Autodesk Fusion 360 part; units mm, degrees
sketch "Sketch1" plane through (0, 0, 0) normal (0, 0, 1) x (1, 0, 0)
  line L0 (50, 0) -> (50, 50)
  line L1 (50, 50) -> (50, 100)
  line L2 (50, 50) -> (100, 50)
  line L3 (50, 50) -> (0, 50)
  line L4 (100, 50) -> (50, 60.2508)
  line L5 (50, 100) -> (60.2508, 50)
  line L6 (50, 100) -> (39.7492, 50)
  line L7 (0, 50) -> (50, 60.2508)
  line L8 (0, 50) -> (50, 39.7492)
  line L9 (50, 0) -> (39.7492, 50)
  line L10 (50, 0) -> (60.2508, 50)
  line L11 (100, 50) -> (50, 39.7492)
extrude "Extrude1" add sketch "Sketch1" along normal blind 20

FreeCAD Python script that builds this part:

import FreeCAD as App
import Part
import Sketcher

V = App.Vector
Q = App.Units.Quantity

doc = App.newDocument("Part")
body = doc.addObject("PartDesign::Body", "Body")

sketch1 = body.newObject("Sketcher::SketchObject", "Sketch")
sketch1.AttachmentSupport = (doc.getObject("XY_Plane"), [""])
sketch1.MapMode = "FlatFace"
sketch1.addGeometry(Part.LineSegment(V(41.493225, 41.493225, 0), V(50, 0, 0)), False)
sketch1.addGeometry(Part.LineSegment(V(50, 0, 0), V(58.506775, 41.493225, 0)), False)
sketch1.addGeometry(Part.LineSegment(V(58.506775, 41.493225, 0), V(100, 50, 0)), False)
sketch1.addGeometry(Part.LineSegment(V(100, 50, 0), V(58.506775, 58.506775, 0)), False)
sketch1.addGeometry(Part.LineSegment(V(58.506775, 58.506775, 0), V(50, 100, 0)), False)
sketch1.addGeometry(Part.LineSegment(V(50, 100, 0), V(41.493225, 58.506775, 0)), False)
sketch1.addGeometry(Part.LineSegment(V(41.493225, 58.506775, 0), V(0, 50, 0)), False)
sketch1.addGeometry(Part.LineSegment(V(0, 50, 0), V(41.493225, 41.493225, 0)), False)
sketch1.addConstraint(Sketcher.Constraint("Coincident", 0, 2, 1, 1))
sketch1.addConstraint(Sketcher.Constraint("Coincident", 1, 2, 2, 1))
sketch1.addConstraint(Sketcher.Constraint("Coincident", 2, 2, 3, 1))
sketch1.addConstraint(Sketcher.Constraint("Coincident", 3, 2, 4, 1))
sketch1.addConstraint(Sketcher.Constraint("Coincident", 4, 2, 5, 1))
sketch1.addConstraint(Sketcher.Constraint("Coincident", 5, 2, 6, 1))
sketch1.addConstraint(Sketcher.Constraint("Coincident", 6, 2, 7, 1))
sketch1.addConstraint(Sketcher.Constraint("Coincident", 7, 2, 0, 1))
sketch1.addConstraint(Sketcher.Constraint("PointOnObject", 0, 2, -1))
sketch1.addConstraint(Sketcher.Constraint("PointOnObject", 6, 2, -2))
sketch1.addConstraint(Sketcher.Constraint("Perpendicular", 0, 2))
sketch1.addConstraint(Sketcher.Constraint("Perpendicular", 1, 3))
sketch1.addConstraint(Sketcher.Constraint("Perpendicular", 2, 4))
sketch1.addConstraint(Sketcher.Constraint("Perpendicular", 3, 5))
sketch1.addConstraint(Sketcher.Constraint("Perpendicular", 4, 6))
sketch1.addConstraint(Sketcher.Constraint("Perpendicular", 5, 7))
sketch1.addConstraint(Sketcher.Constraint("Horizontal", 3, 2, 5, 2))
sketch1.addConstraint(Sketcher.Constraint("Horizontal", 2, 2, 6, 2))
sketch1.addConstraint(Sketcher.Constraint("Horizontal", 1, 2, 7, 2))
sketch1.addConstraint(Sketcher.Constraint("Vertical", 1, 2, 3, 2))
sketch1.addConstraint(Sketcher.Constraint("Vertical", 0, 2, 4, 2))
sketch1.addConstraint(Sketcher.Constraint("Equal", 1, 2))
sketch1.addConstraint(Sketcher.Constraint("DistanceX", -1, 1, 0, 2, Q("50 mm")))
sketch1.addConstraint(Sketcher.Constraint("Distance", 0, Q("42.3563 mm")))
pad1 = body.newObject("PartDesign::Pad", "Pad")
pad1.Profile = sketch1
pad1.Length = 20

doc.recompute()
